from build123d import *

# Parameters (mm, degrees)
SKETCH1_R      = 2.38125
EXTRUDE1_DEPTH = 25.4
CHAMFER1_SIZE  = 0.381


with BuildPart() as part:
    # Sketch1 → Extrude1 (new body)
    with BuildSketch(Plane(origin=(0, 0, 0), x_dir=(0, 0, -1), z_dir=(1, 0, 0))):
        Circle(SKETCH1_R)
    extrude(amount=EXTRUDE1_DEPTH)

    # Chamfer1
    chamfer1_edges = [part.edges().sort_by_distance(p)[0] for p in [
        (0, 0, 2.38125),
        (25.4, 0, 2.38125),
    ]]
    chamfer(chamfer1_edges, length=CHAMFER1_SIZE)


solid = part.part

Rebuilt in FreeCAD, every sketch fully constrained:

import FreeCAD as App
import Part
import Sketcher

V = App.Vector
Q = App.Units.Quantity


def edges_at(feature, points):
    """Names of the edges that pass closest to the given points."""
    edges = feature.Shape.Edges
    near = lambda p: min(range(len(edges)), key=lambda i: edges[i].distToShape(Part.Vertex(*p))[0])
    return sorted({f"Edge{near(p) + 1}" for p in points})

doc = App.newDocument("Part")
body = doc.addObject("PartDesign::Body", "Body")

sketch1 = body.newObject("Sketcher::SketchObject", "Sketch")
sketch1.AttachmentSupport = (doc.getObject("YZ_Plane"), [""])
sketch1.MapMode = "FlatFace"
sketch1.addGeometry(Part.Circle(V(0, 0, 0), V(0, 0, 1), 2.4), False)
sketch1.addConstraint([
    Sketcher.Constraint("Coincident", 0, 3, -1, 1),
    Sketcher.Constraint("Diameter", 0, Q("0.1875 in")),
])
pad1 = body.newObject("PartDesign::Pad", "Pad")
pad1.Profile = sketch1
pad1.Length = Q("1 in")
doc.recompute()

chamfer = body.newObject("PartDesign::Chamfer", "Chamfer")
chamfer.Base = (pad1, edges_at(pad1, [(0, 0, 2.381), (25.4, 0, 2.381)]))
chamfer.Size = Q("0.015 in")

doc.recompute()
